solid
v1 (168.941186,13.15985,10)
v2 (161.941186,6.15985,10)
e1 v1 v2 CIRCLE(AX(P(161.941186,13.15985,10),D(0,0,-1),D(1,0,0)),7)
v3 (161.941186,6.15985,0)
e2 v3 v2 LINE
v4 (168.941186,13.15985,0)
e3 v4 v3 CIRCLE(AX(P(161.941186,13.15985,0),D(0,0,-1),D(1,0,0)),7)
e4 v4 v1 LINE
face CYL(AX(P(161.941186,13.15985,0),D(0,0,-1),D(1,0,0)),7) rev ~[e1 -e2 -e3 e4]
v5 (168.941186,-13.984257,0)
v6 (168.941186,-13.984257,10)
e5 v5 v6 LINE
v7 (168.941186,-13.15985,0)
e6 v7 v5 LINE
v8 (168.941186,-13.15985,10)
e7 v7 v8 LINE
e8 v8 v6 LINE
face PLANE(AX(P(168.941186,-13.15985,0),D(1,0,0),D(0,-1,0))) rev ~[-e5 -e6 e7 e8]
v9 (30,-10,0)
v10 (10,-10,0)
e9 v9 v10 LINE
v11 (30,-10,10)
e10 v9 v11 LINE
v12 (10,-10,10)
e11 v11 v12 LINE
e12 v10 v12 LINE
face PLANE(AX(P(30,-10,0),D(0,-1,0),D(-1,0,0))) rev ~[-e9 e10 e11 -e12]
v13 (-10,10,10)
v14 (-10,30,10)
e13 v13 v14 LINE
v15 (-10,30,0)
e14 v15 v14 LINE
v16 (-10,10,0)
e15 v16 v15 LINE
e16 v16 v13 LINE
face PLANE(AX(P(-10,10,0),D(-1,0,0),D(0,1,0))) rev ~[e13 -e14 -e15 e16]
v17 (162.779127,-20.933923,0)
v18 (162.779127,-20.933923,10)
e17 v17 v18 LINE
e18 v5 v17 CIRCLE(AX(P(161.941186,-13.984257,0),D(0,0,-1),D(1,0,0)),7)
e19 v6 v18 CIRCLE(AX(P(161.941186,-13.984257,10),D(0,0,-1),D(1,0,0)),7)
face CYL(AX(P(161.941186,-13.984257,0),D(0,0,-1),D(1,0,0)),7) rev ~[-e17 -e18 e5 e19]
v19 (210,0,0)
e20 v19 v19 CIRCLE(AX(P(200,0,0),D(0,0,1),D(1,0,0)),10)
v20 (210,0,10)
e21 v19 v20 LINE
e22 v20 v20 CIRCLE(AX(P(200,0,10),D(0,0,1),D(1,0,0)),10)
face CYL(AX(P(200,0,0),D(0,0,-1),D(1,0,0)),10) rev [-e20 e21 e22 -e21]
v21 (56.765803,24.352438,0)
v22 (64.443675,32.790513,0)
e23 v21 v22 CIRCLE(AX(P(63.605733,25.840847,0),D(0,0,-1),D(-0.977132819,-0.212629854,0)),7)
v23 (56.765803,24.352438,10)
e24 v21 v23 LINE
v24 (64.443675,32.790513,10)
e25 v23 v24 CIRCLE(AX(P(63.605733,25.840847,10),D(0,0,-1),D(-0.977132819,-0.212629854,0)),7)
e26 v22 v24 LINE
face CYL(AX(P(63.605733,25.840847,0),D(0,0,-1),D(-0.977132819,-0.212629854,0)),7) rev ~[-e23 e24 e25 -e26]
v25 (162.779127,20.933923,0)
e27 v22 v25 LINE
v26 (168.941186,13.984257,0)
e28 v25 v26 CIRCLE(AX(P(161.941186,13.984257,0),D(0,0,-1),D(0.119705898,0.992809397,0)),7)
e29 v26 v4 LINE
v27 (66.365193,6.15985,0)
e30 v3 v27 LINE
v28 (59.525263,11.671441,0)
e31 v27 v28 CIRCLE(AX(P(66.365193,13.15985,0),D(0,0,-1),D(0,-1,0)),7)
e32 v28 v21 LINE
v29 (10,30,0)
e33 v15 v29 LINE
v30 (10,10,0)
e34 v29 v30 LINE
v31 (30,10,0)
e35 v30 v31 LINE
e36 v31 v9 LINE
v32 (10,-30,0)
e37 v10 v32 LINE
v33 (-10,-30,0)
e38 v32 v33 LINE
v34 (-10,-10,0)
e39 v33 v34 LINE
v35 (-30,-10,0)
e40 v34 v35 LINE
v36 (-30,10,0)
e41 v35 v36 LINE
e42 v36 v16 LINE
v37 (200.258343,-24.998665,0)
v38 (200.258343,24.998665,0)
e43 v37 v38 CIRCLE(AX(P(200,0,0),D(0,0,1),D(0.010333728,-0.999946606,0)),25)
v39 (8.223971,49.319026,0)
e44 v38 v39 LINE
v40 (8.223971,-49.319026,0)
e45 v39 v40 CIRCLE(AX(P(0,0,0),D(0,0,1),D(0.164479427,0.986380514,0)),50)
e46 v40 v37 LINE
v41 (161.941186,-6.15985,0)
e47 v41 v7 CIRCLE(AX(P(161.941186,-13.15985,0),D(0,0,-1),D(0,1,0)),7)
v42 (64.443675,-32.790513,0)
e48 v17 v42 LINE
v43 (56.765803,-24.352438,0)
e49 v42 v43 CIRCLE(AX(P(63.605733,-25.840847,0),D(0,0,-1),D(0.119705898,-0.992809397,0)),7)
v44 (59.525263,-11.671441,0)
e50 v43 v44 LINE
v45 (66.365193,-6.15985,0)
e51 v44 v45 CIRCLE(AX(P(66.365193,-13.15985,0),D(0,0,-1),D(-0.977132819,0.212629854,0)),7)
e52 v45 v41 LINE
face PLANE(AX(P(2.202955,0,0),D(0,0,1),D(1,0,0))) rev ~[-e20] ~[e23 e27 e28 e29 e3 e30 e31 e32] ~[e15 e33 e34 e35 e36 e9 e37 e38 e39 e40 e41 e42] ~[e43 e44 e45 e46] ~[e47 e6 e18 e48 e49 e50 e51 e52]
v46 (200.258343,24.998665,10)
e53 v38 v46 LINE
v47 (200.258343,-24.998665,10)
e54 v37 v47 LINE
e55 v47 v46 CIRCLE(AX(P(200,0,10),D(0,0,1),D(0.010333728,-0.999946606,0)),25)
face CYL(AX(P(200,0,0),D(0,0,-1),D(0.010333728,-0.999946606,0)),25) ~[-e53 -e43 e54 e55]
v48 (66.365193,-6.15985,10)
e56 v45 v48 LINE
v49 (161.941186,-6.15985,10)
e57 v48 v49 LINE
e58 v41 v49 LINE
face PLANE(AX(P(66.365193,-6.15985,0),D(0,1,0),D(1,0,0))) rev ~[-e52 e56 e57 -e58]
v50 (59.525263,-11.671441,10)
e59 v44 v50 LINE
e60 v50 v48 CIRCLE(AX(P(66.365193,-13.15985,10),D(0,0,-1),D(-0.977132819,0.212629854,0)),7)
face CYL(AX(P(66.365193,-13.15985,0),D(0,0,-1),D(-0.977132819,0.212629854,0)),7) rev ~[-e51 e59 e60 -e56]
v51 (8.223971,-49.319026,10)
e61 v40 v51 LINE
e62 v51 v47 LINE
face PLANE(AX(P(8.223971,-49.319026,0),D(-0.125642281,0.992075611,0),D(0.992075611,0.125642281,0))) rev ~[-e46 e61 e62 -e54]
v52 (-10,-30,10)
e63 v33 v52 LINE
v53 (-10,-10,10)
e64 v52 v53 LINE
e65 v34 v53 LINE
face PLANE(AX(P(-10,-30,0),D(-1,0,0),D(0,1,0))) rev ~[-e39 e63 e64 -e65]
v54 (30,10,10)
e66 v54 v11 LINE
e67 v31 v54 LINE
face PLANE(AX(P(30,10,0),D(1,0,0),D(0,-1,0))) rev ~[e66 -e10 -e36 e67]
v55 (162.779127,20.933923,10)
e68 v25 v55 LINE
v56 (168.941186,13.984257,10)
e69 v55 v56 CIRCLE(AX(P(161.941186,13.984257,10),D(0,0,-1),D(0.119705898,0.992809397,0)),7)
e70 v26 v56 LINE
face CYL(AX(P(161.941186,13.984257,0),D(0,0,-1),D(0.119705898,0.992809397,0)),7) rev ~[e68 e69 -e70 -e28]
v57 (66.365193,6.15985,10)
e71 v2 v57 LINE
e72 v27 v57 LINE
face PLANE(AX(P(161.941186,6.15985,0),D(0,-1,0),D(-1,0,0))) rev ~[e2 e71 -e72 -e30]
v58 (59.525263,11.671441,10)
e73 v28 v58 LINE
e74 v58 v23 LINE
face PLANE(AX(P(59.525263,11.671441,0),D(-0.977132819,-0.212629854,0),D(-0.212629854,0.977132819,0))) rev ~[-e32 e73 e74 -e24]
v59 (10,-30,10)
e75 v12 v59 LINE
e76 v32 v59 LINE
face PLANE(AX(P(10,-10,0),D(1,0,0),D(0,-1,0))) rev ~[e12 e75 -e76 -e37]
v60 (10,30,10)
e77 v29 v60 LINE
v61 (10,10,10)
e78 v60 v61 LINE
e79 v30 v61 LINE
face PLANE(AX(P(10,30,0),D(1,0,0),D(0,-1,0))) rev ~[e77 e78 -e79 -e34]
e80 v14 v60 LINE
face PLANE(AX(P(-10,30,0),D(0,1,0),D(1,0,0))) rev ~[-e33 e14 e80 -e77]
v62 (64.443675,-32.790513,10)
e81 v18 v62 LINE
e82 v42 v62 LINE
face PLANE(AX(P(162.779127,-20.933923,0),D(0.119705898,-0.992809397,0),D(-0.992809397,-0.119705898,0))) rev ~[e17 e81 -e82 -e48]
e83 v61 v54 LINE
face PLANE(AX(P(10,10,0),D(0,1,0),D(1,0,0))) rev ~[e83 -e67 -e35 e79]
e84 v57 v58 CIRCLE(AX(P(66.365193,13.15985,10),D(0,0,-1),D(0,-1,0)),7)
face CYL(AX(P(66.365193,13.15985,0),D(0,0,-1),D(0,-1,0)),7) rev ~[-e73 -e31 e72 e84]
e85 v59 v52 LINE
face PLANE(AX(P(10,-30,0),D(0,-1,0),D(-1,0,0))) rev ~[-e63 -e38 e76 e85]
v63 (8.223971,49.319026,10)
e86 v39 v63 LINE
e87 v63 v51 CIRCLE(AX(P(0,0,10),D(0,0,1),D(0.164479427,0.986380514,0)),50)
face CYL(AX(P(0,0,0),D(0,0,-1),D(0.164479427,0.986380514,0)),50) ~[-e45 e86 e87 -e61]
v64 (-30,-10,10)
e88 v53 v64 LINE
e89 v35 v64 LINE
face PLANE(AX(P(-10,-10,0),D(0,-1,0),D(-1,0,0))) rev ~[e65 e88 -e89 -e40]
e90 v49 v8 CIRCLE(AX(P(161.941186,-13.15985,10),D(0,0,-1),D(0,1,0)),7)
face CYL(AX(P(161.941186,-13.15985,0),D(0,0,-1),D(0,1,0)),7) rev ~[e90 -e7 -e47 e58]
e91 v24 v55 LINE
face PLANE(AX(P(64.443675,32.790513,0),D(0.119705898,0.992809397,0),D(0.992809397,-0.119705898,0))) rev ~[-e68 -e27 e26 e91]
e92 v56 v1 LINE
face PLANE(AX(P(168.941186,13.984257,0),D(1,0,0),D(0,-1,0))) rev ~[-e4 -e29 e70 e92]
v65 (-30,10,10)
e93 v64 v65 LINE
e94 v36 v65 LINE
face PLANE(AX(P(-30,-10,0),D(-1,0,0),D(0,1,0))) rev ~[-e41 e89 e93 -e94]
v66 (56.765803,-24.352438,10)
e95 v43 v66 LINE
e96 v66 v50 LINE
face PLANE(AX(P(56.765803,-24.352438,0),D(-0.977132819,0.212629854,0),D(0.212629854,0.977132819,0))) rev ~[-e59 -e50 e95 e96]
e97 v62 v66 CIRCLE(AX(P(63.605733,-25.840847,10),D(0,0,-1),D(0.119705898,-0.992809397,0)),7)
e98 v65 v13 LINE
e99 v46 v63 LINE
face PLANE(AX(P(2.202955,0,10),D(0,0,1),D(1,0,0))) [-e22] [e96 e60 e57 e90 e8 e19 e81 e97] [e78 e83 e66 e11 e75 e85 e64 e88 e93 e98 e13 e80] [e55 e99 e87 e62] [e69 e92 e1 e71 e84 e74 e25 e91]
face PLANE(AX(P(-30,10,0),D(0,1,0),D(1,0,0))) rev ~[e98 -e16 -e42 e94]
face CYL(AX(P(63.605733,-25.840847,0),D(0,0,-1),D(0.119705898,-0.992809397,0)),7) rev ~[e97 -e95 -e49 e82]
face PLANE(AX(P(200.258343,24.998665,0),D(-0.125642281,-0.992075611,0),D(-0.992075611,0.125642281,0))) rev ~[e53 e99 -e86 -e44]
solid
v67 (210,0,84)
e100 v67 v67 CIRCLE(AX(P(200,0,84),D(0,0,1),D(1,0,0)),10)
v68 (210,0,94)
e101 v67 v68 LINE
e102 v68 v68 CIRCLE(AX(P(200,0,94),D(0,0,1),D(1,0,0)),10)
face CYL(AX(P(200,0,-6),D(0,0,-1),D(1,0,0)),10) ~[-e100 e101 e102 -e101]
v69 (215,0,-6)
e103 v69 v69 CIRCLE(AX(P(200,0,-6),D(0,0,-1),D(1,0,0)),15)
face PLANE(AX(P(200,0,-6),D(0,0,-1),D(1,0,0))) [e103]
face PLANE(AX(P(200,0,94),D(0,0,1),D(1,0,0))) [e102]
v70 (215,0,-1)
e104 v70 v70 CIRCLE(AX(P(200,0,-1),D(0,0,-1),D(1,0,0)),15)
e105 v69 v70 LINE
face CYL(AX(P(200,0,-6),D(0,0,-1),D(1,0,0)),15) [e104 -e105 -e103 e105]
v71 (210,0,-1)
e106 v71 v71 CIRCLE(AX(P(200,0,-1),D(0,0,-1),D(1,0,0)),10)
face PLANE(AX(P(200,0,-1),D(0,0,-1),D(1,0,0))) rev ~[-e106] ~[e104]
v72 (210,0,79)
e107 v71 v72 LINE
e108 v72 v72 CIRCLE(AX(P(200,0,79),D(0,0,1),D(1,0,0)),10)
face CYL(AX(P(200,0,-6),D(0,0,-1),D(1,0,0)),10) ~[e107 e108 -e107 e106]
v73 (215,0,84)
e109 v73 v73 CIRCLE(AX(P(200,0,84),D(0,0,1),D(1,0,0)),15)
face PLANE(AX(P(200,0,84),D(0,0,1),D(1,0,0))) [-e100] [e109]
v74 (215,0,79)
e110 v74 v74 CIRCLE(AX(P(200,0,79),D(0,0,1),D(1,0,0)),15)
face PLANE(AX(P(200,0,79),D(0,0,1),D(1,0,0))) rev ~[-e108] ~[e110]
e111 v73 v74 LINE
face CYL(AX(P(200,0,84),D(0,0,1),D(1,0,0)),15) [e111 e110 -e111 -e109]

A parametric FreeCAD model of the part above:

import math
import FreeCAD as App
import Part
import Sketcher

doc = App.newDocument("Part")
body = doc.addObject("PartDesign::Body", "Body")

# Sketch on XY plane
sketch1 = body.newObject("Sketcher::SketchObject", "Sketch")
sketch1.AttachmentSupport = (doc.getObject("XY_Plane"), [""])
sketch1.MapMode = "FlatFace"
sketch1.addGeometry(Part.ArcOfCircle(Part.Circle(App.Vector(0, 0, 0), App.Vector(0, 0, 1), 50), math.radians(81), math.radians(279)), False)
sketch1.addGeometry(Part.LineSegment(App.Vector(8.2, -49.3, 0), App.Vector(200.3, -25, 0)), False)
sketch1.addGeometry(Part.ArcOfCircle(Part.Circle(App.Vector(200, 0, 0), App.Vector(0, 0, 1), 25), math.radians(-89), math.radians(89)), False)
sketch1.addGeometry(Part.LineSegment(App.Vector(200.3, 25, 0), App.Vector(8.2, 49.3, 0)), False)
sketch1.addGeometry(Part.LineSegment(App.Vector(56.8, -24.4, 0), App.Vector(59.5, -11.7, 0)), False)
sketch1.addGeometry(Part.ArcOfCircle(Part.Circle(App.Vector(66.4, -13.2, 0), App.Vector(0, 0, 1), 7), math.radians(90), math.radians(168)), False)
sketch1.addGeometry(Part.LineSegment(App.Vector(66.4, -6.2, 0), App.Vector(161.9, -6.2, 0)), False)
sketch1.addGeometry(Part.ArcOfCircle(Part.Circle(App.Vector(161.9, -13.2, 0), App.Vector(0, 0, 1), 7), math.radians(0), math.radians(90)), False)
sketch1.addGeometry(Part.LineSegment(App.Vector(168.9, -13.2, 0), App.Vector(168.9, -14, 0)), False)
sketch1.addGeometry(Part.ArcOfCircle(Part.Circle(App.Vector(161.9, -14, 0), App.Vector(0, 0, 1), 7), math.radians(-83), math.radians(0)), False)
sketch1.addGeometry(Part.LineSegment(App.Vector(162.8, -20.9, 0), App.Vector(64.4, -32.8, 0)), False)
sketch1.addGeometry(Part.ArcOfCircle(Part.Circle(App.Vector(63.6, -25.8, 0), App.Vector(0, 0, 1), 7), math.radians(168), math.radians(277)), False)
sketch1.addGeometry(Part.LineSegment(App.Vector(-10, 10, 0), App.Vector(-10, 30, 0)), False)
sketch1.addGeometry(Part.LineSegment(App.Vector(-10, 30, 0), App.Vector(10, 30, 0)), False)
sketch1.addGeometry(Part.LineSegment(App.Vector(10, 30, 0), App.Vector(10, 10, 0)), False)
sketch1.addGeometry(Part.LineSegment(App.Vector(10, 10, 0), App.Vector(30, 10, 0)), False)
sketch1.addGeometry(Part.LineSegment(App.Vector(30, 10, 0), App.Vector(30, -10, 0)), False)
sketch1.addGeometry(Part.LineSegment(App.Vector(30, -10, 0), App.Vector(10, -10, 0)), False)
sketch1.addGeometry(Part.LineSegment(App.Vector(10, -10, 0), App.Vector(10, -30, 0)), False)
sketch1.addGeometry(Part.LineSegment(App.Vector(10, -30, 0), App.Vector(-10, -30, 0)), False)
sketch1.addGeometry(Part.LineSegment(App.Vector(-10, -30, 0), App.Vector(-10, -10, 0)), False)
sketch1.addGeometry(Part.LineSegment(App.Vector(-10, -10, 0), App.Vector(-30, -10, 0)), False)
sketch1.addGeometry(Part.LineSegment(App.Vector(-30, -10, 0), App.Vector(-30, 10, 0)), False)
sketch1.addGeometry(Part.LineSegment(App.Vector(-30, 10, 0), App.Vector(-10, 10, 0)), False)
sketch1.addGeometry(Part.Circle(App.Vector(200, 0, 0), App.Vector(0, 0, 1), 10), False)
sketch1.addGeometry(Part.ArcOfCircle(Part.Circle(App.Vector(66.4, 13.2, 0), App.Vector(0, 0, 1), 7), math.radians(-168), math.radians(-90)), False)
sketch1.addGeometry(Part.LineSegment(App.Vector(59.5, 11.7, 0), App.Vector(56.8, 24.4, 0)), False)
sketch1.addGeometry(Part.ArcOfCircle(Part.Circle(App.Vector(63.6, 25.8, 0), App.Vector(0, 0, 1), 7), math.radians(83), math.radians(192)), False)
sketch1.addGeometry(Part.LineSegment(App.Vector(64.4, 32.8, 0), App.Vector(162.8, 20.9, 0)), False)
sketch1.addGeometry(Part.ArcOfCircle(Part.Circle(App.Vector(161.9, 14, 0), App.Vector(0, 0, 1), 7), math.radians(0), math.radians(83)), False)
sketch1.addGeometry(Part.LineSegment(App.Vector(168.9, 14, 0), App.Vector(168.9, 13.2, 0)), False)
sketch1.addGeometry(Part.ArcOfCircle(Part.Circle(App.Vector(161.9, 13.2, 0), App.Vector(0, 0, 1), 7), math.radians(-90), math.radians(0)), False)
sketch1.addGeometry(Part.LineSegment(App.Vector(161.9, 6.2, 0), App.Vector(66.4, 6.2, 0)), False)
sketch1.addConstraint(Sketcher.Constraint("Coincident", 0, 2, 1, 1))
sketch1.addConstraint(Sketcher.Constraint("Coincident", 1, 2, 2, 1))
sketch1.addConstraint(Sketcher.Constraint("Coincident", 2, 2, 3, 1))
sketch1.addConstraint(Sketcher.Constraint("Coincident", 3, 2, 0, 1))
sketch1.addConstraint(Sketcher.Constraint("Tangent", 4, 2, 5, 2))
sketch1.addConstraint(Sketcher.Constraint("Tangent", 5, 1, 6, 1))
sketch1.addConstraint(Sketcher.Constraint("Tangent", 6, 2, 7, 2))
sketch1.addConstraint(Sketcher.Constraint("Tangent", 7, 1, 8, 1))
sketch1.addConstraint(Sketcher.Constraint("Tangent", 8, 2, 9, 2))
sketch1.addConstraint(Sketcher.Constraint("Tangent", 9, 1, 10, 1))
sketch1.addConstraint(Sketcher.Constraint("Tangent", 10, 2, 11, 2))
sketch1.addConstraint(Sketcher.Constraint("Tangent", 11, 1, 4, 1))
sketch1.addConstraint(Sketcher.Constraint("Coincident", 12, 2, 13, 1))
sketch1.addConstraint(Sketcher.Constraint("Coincident", 13, 2, 14, 1))
sketch1.addConstraint(Sketcher.Constraint("Coincident", 14, 2, 15, 1))
sketch1.addConstraint(Sketcher.Constraint("Coincident", 15, 2, 16, 1))
sketch1.addConstraint(Sketcher.Constraint("Coincident", 16, 2, 17, 1))
sketch1.addConstraint(Sketcher.Constraint("Coincident", 17, 2, 18, 1))
sketch1.addConstraint(Sketcher.Constraint("Coincident", 18, 2, 19, 1))
sketch1.addConstraint(Sketcher.Constraint("Coincident", 19, 2, 20, 1))
sketch1.addConstraint(Sketcher.Constraint("Coincident", 20, 2, 21, 1))
sketch1.addConstraint(Sketcher.Constraint("Coincident", 21, 2, 22, 1))
sketch1.addConstraint(Sketcher.Constraint("Coincident", 22, 2, 23, 1))
sketch1.addConstraint(Sketcher.Constraint("Coincident", 23, 2, 12, 1))
sketch1.addConstraint(Sketcher.Constraint("Tangent", 25, 1, 26, 1))
sketch1.addConstraint(Sketcher.Constraint("Tangent", 26, 2, 27, 2))
sketch1.addConstraint(Sketcher.Constraint("Tangent", 27, 1, 28, 1))
sketch1.addConstraint(Sketcher.Constraint("Tangent", 28, 2, 29, 2))
sketch1.addConstraint(Sketcher.Constraint("Tangent", 29, 1, 30, 1))
sketch1.addConstraint(Sketcher.Constraint("Tangent", 30, 2, 31, 2))
sketch1.addConstraint(Sketcher.Constraint("Tangent", 31, 1, 32, 1))
sketch1.addConstraint(Sketcher.Constraint("Tangent", 32, 2, 25, 2))
sketch1.addConstraint(Sketcher.Constraint("Horizontal", 6))
sketch1.addConstraint(Sketcher.Constraint("Vertical", 8))
sketch1.addConstraint(Sketcher.Constraint("Vertical", 12))
sketch1.addConstraint(Sketcher.Constraint("Horizontal", 13))
sketch1.addConstraint(Sketcher.Constraint("Vertical", 14))
sketch1.addConstraint(Sketcher.Constraint("Horizontal", 15))
sketch1.addConstraint(Sketcher.Constraint("Vertical", 16))
sketch1.addConstraint(Sketcher.Constraint("Horizontal", 17))
sketch1.addConstraint(Sketcher.Constraint("Vertical", 18))
sketch1.addConstraint(Sketcher.Constraint("Horizontal", 19))
sketch1.addConstraint(Sketcher.Constraint("Vertical", 20))
sketch1.addConstraint(Sketcher.Constraint("Horizontal", 21))
sketch1.addConstraint(Sketcher.Constraint("Vertical", 22))
sketch1.addConstraint(Sketcher.Constraint("Horizontal", 23))
sketch1.addConstraint(Sketcher.Constraint("Vertical", 30))
sketch1.addConstraint(Sketcher.Constraint("Horizontal", 32))
sketch1.addConstraint(Sketcher.Constraint("Coincident", 0, 3, -1, 1))
sketch1.addConstraint(Sketcher.Constraint("Coincident", 24, 3, 2, 3))
sketch1.addConstraint(Sketcher.Constraint("Equal", 5, 7))
sketch1.addConstraint(Sketcher.Constraint("Equal", 7, 9))
sketch1.addConstraint(Sketcher.Constraint("Equal", 9, 11))
sketch1.addConstraint(Sketcher.Constraint("Equal", 11, 25))
sketch1.addConstraint(Sketcher.Constraint("Equal", 25, 27))
sketch1.addConstraint(Sketcher.Constraint("Equal", 27, 29))
sketch1.addConstraint(Sketcher.Constraint("Equal", 29, 31))
sketch1.addConstraint(Sketcher.Constraint("Symmetric", 12, 2, 18, 2, -1, 1))
sketch1.addConstraint(Sketcher.Constraint("Symmetric", 14, 2, 20, 2, -1, 1))
sketch1.addConstraint(Sketcher.Constraint("Symmetric", 16, 2, 22, 2, -1, 1))
sketch1.addConstraint(Sketcher.Constraint("Symmetric", 17, 2, 20, 2, -2))
sketch1.addConstraint(Sketcher.Constraint("Symmetric", 5, 3, 25, 3, -1))
sketch1.addConstraint(Sketcher.Constraint("Symmetric", 11, 3, 27, 3, -1))
sketch1.addConstraint(Sketcher.Constraint("Symmetric", 9, 3, 29, 3, -1))
sketch1.addConstraint(Sketcher.Constraint("Symmetric", 1, 2, 2, 2, -1))
sketch1.addConstraint(Sketcher.Constraint("Vertical", 0, 2, 3, 2))
sketch1.addConstraint(Sketcher.Constraint("Equal", 13, 15))
sketch1.addConstraint(Sketcher.Constraint("Equal", 23, 12))
sketch1.addConstraint(Sketcher.Constraint("Equal", 14, 16))
sketch1.addConstraint(Sketcher.Constraint("Diameter", 24, 20.0))
sketch1.addConstraint(Sketcher.Constraint("Radius", 0, 50.0))
sketch1.addConstraint(Sketcher.Constraint("Radius", 2, 25.0))
sketch1.addConstraint(Sketcher.Constraint("Radius", 5, 7.0))
sketch1.addConstraint(Sketcher.Constraint("DistanceX", 13, 1, 13, 2, 20.0))
sketch1.addConstraint(Sketcher.Constraint("DistanceX", -1, 1, 2, 3, 200.0))
sketch1.addConstraint(Sketcher.Constraint("DistanceY", 5, 3, 25, 3, 26.3197))
sketch1.addConstraint(Sketcher.Constraint("Distance", 4, 12.977762))
sketch1.addConstraint(Sketcher.Constraint("DistanceX", 6, 1, 6, 2, 95.575993))
sketch1.addConstraint(Sketcher.Constraint("DistanceY", 8, 2, 8, 1, 0.824407))
sketch1.addConstraint(Sketcher.Constraint("DistanceX", -1, 1, 0, 2, 8.223971))
sketch1.addConstraint(Sketcher.Constraint("DistanceY", 4, 2, -1, 1, 11.671441))
sketch1.addConstraint(Sketcher.Constraint("DistanceX", 0, 2, 11, 3, 55.381762))
sketch1.addConstraint(Sketcher.Constraint("DistanceY", 1, 2, 2, 2, 49.99733))
pad1 = body.newObject("PartDesign::Pad", "Pad")
pad1.Profile = sketch1
pad1.Length = 10
body2 = doc.addObject("PartDesign::Body", "Body001")

# Sketch on XY plane
sketch2 = body2.newObject("Sketcher::SketchObject", "Sketch001")
sketch2.AttachmentSupport = (doc.getObject("XY_Plane001"), [""])
sketch2.MapMode = "FlatFace"
sketch2.AttachmentOffset = App.Placement(App.Vector(0, 0, 10), App.Rotation())
sketch2.addGeometry(Part.Circle(App.Vector(200, 0, 0), App.Vector(0, 0, 1), 10), False)
sketch2.addConstraint(Sketcher.Constraint("PointOnObject", 0, 3, -1))
sketch2.addConstraint(Sketcher.Constraint("Diameter", 0, 20.0))
sketch2.addConstraint(Sketcher.Constraint("DistanceX", -1, 1, 0, 3, 200.0))
pad2 = body2.newObject("PartDesign::Pad", "Pad001")
pad2.Profile = sketch2
pad2.Length = 100
body3 = doc.addObject("PartDesign::Body", "Body002")
doc.recompute()

body2.Placement = App.Placement(App.Vector(0, 0, -16), App.Rotation(App.Vector(0, 0, 1), 0))
boolean = body3.newObject("PartDesign::Boolean", "Boolean")
boolean.Type = "Fuse"
boolean.addObjects([body2])

# Sketch on XY plane
sketch3 = body3.newObject("Sketcher::SketchObject", "Sketch002")
sketch3.AttachmentSupport = (doc.getObject("XY_Plane002"), [""])
sketch3.MapMode = "FlatFace"
sketch3.AttachmentOffset = App.Placement(App.Vector(0, 0, -6), App.Rotation())
sketch3.addGeometry(Part.Circle(App.Vector(200, 0, 0), App.Vector(0, 0, 1), 15), False)
sketch3.addGeometry(Part.Circle(App.Vector(200, 0, 0), App.Vector(0, 0, 1), 10), False)
sketch3.addConstraint(Sketcher.Constraint("Coincident", 1, 3, 0, 3))
sketch3.addConstraint(Sketcher.Constraint("PointOnObject", 0, 3, -1))
sketch3.addConstraint(Sketcher.Constraint("Diameter", 0, 30.0))
sketch3.addConstraint(Sketcher.Constraint("Diameter", 1, 20.0))
sketch3.addConstraint(Sketcher.Constraint("DistanceX", -1, 1, 0, 3, 200.0))
pad3 = body3.newObject("PartDesign::Pad", "Pad002")
pad3.Profile = sketch3
pad3.Length = 5

# Sketch on XY plane
sketch4 = body3.newObject("Sketcher::SketchObject", "Sketch003")
sketch4.AttachmentSupport = (doc.getObject("XY_Plane002"), [""])
sketch4.MapMode = "FlatFace"
sketch4.AttachmentOffset = App.Placement(App.Vector(0, 0, 84), App.Rotation())
sketch4.addGeometry(Part.Circle(App.Vector(200, 0, 0), App.Vector(0, 0, 1), 15), False)
sketch4.addGeometry(Part.Circle(App.Vector(200, 0, 0), App.Vector(0, 0, 1), 10), False)
sketch4.addConstraint(Sketcher.Constraint("Coincident", 1, 3, 0, 3))
sketch4.addConstraint(Sketcher.Constraint("PointOnObject", 0, 3, -1))
sketch4.addConstraint(Sketcher.Constraint("Diameter", 0, 30.0))
sketch4.addConstraint(Sketcher.Constraint("Diameter", 1, 20.0))
sketch4.addConstraint(Sketcher.Constraint("DistanceX", -1, 1, 0, 3, 200.0))
pad4 = body3.newObject("PartDesign::Pad", "Pad003")
pad4.Profile = sketch4
pad4.Length = 5
pad4.Reversed = True

doc.recompute()
